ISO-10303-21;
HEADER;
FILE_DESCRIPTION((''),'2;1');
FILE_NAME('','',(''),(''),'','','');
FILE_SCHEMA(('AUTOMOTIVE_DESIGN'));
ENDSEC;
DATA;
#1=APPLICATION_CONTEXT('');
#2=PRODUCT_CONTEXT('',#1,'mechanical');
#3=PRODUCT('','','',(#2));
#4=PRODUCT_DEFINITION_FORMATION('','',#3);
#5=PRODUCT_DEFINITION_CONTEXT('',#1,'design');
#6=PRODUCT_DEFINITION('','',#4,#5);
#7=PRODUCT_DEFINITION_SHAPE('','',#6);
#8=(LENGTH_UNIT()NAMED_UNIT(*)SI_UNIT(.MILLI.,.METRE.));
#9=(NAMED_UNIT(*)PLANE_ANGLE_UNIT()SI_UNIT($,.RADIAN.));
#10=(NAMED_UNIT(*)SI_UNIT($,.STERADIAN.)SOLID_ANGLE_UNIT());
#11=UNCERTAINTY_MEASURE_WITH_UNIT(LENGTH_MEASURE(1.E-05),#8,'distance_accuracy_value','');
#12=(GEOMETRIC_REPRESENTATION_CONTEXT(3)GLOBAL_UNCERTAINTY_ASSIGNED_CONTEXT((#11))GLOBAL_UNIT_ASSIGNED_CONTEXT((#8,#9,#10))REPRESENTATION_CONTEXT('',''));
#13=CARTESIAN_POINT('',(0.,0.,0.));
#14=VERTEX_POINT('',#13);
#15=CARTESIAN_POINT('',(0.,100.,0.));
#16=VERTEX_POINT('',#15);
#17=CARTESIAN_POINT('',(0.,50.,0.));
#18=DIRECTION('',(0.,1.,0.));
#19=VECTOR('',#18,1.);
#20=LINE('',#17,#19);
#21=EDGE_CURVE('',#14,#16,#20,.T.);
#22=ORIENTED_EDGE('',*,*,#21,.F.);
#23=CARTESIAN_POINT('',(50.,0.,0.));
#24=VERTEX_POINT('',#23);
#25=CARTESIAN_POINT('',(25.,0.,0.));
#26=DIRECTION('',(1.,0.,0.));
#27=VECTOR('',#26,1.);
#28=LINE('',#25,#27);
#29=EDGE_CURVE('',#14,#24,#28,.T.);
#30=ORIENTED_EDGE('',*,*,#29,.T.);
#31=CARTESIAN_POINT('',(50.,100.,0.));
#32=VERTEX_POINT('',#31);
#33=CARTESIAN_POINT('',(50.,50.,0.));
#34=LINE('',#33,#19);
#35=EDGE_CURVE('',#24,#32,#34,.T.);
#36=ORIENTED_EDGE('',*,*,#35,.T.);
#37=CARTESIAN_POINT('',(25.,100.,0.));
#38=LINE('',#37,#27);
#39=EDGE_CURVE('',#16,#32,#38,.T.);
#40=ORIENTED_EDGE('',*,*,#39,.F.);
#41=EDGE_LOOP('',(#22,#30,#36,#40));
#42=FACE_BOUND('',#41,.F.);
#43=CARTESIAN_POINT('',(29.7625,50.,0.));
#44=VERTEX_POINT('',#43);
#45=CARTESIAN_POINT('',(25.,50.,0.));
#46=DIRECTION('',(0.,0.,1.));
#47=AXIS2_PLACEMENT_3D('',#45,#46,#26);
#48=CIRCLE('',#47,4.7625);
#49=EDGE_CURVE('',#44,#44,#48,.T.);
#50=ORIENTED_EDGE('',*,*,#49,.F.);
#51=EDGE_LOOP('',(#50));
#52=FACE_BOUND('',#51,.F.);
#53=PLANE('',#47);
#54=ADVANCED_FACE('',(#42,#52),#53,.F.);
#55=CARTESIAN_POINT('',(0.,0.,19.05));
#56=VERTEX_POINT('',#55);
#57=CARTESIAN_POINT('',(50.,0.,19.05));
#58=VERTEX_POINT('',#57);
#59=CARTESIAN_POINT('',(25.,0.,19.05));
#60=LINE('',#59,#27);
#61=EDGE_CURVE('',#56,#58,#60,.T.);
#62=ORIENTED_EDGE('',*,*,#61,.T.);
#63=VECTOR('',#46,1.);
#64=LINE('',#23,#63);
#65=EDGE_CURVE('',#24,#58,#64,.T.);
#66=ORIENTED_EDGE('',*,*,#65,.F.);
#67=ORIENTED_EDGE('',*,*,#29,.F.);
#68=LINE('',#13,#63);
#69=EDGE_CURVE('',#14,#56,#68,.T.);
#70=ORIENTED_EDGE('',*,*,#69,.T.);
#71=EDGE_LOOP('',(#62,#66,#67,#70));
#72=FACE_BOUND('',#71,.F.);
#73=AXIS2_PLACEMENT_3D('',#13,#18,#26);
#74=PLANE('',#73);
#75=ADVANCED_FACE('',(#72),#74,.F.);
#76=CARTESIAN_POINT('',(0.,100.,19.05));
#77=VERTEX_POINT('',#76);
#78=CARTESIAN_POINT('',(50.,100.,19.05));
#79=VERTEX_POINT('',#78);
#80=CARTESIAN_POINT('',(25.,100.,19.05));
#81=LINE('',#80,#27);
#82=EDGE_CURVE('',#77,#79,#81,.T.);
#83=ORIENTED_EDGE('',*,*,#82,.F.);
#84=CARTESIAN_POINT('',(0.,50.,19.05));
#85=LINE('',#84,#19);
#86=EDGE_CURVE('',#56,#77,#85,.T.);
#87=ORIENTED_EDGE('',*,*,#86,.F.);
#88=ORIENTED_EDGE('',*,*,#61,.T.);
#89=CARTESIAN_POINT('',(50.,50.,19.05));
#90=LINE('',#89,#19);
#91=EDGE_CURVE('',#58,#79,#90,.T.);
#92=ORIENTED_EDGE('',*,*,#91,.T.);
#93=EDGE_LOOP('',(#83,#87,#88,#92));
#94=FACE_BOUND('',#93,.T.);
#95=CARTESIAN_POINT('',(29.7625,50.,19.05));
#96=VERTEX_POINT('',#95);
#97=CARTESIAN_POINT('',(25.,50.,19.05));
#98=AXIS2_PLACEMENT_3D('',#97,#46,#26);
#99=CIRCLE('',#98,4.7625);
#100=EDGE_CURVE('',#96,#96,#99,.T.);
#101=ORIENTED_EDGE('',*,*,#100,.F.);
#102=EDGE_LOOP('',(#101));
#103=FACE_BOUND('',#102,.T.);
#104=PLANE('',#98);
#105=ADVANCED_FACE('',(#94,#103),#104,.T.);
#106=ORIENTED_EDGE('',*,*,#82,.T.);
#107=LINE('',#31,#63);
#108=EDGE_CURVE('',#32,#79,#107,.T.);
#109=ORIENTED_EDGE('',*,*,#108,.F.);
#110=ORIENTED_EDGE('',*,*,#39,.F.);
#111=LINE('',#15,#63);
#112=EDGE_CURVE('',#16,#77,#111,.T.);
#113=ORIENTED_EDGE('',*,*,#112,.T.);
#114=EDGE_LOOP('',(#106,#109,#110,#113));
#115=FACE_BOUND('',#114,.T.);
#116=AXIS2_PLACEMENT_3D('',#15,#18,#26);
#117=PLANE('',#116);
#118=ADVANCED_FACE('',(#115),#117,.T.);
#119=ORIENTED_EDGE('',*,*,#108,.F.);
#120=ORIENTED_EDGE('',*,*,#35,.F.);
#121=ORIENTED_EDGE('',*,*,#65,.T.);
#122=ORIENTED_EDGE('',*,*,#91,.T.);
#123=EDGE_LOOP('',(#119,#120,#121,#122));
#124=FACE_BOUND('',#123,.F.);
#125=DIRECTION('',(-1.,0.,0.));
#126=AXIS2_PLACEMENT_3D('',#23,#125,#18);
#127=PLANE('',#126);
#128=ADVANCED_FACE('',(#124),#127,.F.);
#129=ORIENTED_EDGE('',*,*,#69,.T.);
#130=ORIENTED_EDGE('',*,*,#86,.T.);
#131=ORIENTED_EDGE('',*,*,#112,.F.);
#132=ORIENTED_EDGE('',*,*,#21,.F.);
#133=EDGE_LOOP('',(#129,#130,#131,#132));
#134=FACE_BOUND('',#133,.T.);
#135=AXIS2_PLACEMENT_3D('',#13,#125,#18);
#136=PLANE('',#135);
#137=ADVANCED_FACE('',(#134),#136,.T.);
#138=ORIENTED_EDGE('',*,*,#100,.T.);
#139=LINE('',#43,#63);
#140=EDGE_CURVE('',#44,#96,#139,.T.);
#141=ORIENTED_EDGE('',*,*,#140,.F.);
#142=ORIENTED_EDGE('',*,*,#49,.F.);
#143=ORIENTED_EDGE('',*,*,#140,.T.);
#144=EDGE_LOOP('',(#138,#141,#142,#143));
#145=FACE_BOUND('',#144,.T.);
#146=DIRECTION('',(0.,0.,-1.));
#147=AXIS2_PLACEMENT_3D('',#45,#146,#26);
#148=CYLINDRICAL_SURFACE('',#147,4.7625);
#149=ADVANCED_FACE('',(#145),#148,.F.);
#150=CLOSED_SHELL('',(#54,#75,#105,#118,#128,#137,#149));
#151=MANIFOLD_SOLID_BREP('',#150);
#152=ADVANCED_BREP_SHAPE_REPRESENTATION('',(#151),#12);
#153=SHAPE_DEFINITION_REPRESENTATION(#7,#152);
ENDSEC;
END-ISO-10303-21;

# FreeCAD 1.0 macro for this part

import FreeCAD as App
import Part
import Sketcher


def add_polygon(sketch, points):
    """Adds a closed chain of lines whose ends are joined by coincident constraints."""
    first, n = sketch.GeometryCount, len(points)
    for a, b in zip(points, points[1:] + points[:1]):
        sketch.addGeometry(Part.LineSegment(App.Vector(*a, 0), App.Vector(*b, 0)), False)
    for i in range(n):
        sketch.addConstraint(Sketcher.Constraint("Coincident", first + i, 2, first + (i + 1) % n, 1))

doc = App.newDocument("Part")
body = doc.addObject("PartDesign::Body", "Body")

# Sketch on XY plane
sketch1 = doc.addObject("Sketcher::SketchObject", "Sketch")
body.addObject(sketch1)
sketch1.AttachmentSupport = (doc.XY_Plane, [""])
sketch1.MapMode = "FlatFace"
add_polygon(sketch1, [(0, 100), (0, 0), (50, 0), (50, 100)])  # lines 0-3
sketch1.addGeometry(Part.Circle(App.Vector(25, 50, 0), App.Vector(0, 0, 1), 4.7625), False)  # 4
sketch1.addConstraint([
    Sketcher.Constraint("Vertical", 0),
    Sketcher.Constraint("Horizontal", 1),
    Sketcher.Constraint("Vertical", 2),
    Sketcher.Constraint("Horizontal", 3),
    Sketcher.Constraint("Coincident", 0, 2, -1, 1),
    Sketcher.Constraint("DistanceX", 1, 1, 1, 2, 50.0),
    Sketcher.Constraint("DistanceY", 0, 2, 0, 1, 100.0),
    Sketcher.Constraint("Diameter", 4, 9.525),
    Sketcher.Constraint("DistanceX", -1, 1, 4, 3, 25.0),
    Sketcher.Constraint("DistanceY", -1, 1, 4, 3, 50.0),
])
pad1 = doc.addObject("PartDesign::Pad", "Pad")
body.addObject(pad1)
pad1.Profile = sketch1
pad1.Length = 19.05

doc.recompute()
